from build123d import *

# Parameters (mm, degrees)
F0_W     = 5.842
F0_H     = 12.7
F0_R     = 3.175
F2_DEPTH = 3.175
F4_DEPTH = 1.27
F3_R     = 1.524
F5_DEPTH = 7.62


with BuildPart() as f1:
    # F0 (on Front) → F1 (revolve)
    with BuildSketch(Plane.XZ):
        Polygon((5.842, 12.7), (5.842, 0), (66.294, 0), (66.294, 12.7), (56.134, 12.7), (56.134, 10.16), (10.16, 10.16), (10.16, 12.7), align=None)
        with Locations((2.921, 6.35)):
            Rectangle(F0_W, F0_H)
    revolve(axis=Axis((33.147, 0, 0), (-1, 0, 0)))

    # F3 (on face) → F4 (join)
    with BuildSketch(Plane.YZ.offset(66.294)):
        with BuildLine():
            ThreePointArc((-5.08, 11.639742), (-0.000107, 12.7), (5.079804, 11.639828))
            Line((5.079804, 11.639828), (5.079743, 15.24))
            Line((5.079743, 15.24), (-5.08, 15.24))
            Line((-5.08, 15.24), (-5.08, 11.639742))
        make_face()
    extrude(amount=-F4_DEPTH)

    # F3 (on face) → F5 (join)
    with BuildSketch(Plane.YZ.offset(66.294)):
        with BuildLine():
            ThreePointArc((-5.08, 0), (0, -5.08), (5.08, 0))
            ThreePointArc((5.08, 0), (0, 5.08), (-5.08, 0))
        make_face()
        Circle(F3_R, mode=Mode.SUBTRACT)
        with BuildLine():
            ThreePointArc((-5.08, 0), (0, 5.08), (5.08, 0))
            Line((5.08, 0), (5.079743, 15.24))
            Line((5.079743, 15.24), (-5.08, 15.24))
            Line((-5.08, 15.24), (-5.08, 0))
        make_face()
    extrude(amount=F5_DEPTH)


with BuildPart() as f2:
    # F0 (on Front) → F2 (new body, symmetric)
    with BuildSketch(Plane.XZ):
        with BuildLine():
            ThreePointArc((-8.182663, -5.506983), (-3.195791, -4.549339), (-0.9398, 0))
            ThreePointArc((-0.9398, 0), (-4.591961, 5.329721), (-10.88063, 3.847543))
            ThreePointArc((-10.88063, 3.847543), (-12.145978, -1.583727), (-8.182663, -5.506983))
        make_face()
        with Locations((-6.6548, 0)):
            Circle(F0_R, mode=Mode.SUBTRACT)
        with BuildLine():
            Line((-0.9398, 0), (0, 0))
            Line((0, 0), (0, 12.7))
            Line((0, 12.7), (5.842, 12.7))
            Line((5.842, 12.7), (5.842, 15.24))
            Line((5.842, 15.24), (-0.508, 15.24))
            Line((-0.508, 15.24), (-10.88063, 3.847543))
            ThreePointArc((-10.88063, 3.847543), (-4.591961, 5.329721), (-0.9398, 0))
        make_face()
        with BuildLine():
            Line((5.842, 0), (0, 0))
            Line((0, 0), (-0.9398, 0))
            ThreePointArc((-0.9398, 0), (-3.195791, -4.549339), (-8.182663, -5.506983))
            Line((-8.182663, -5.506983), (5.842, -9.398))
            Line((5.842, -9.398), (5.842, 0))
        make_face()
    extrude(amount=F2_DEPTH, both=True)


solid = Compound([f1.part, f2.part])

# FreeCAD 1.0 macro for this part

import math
import FreeCAD as App
import Part
import Sketcher
from FreeCAD import Vector
Q = App.Units.Quantity


def add_polygon(sketch, points):
    """Adds a closed chain of lines whose ends are joined by coincident constraints."""
    first, n = sketch.GeometryCount, len(points)
    for a, b in zip(points, points[1:] + points[:1]):
        sketch.addGeometry(Part.LineSegment(App.Vector(*a, 0), App.Vector(*b, 0)), False)
    for i in range(n):
        sketch.addConstraint(Sketcher.Constraint("Coincident", first + i, 2, first + (i + 1) % n, 1))

doc = App.newDocument("Part")
body = doc.addObject("PartDesign::Body", "Body")

# Sketch on XZ plane
sketch1 = body.newObject("Sketcher::SketchObject", "Sketch")
sketch1.AttachmentSupport = (doc.getObject("XZ_Plane"), [""])
sketch1.MapMode = "FlatFace"
add_polygon(sketch1, [(66.294, 0), (66.294, 12.7), (56.134, 12.7), (56.134, 10.16), (10.16, 10.16), (10.16, 12.7), (0, 12.7), (0, 0)])  # lines 0-7
sketch1.addConstraint([
    Sketcher.Constraint("Vertical", 0),
    Sketcher.Constraint("Horizontal", 1),
    Sketcher.Constraint("Vertical", 2),
    Sketcher.Constraint("Horizontal", 3),
    Sketcher.Constraint("Vertical", 4),
    Sketcher.Constraint("Horizontal", 5),
    Sketcher.Constraint("Vertical", 6),
    Sketcher.Constraint("Horizontal", 7),
    Sketcher.Constraint("Coincident", 6, 2, -1, 1),
    Sketcher.Constraint("Horizontal", 1, 2, 4, 2),
    Sketcher.Constraint("Equal", 1, 5),
    Sketcher.Constraint("DistanceX", 1, 2, 1, 1, Q("0.4 in")),
    Sketcher.Constraint("DistanceY", 0, 1, 0, 2, Q("0.5 in")),
    Sketcher.Constraint("DistanceY", 2, 2, 2, 1, Q("0.1 in")),
    Sketcher.Constraint("DistanceX", 3, 2, 3, 1, Q("1.81 in")),
])
revolution = body.newObject("PartDesign::Revolution", "Revolution")
revolution.Profile = sketch1
revolution.ReferenceAxis = (sketch1, ["H_Axis"])
revolution.Angle = 360

# Sketch on YZ plane
sketch2 = body.newObject("Sketcher::SketchObject", "Sketch001")
sketch2.AttachmentSupport = (doc.getObject("YZ_Plane"), [""])
sketch2.MapMode = "FlatFace"
sketch2.AttachmentOffset = App.Placement(Vector(0, 0, 2.61 * 25.4), App.Rotation())
sketch2.addGeometry([
    Part.ArcOfCircle(Part.Circle(Vector(0.000001, 0, 0), Vector(0, 0, 1), 12.7), math.radians(66.422788), math.radians(113.578182)),
    Part.LineSegment(Vector(5.079804, 11.639828, 0), Vector(5.079743, 15.24, 0)),
    Part.LineSegment(Vector(5.079743, 15.24, 0), Vector(-5.08, 15.24, 0)),
    Part.LineSegment(Vector(-5.08, 15.24, 0), Vector(-5.08, 11.639742, 0)),
], False)
sketch2.addConstraint([
    Sketcher.Constraint("Coincident", 0, 1, 1, 1),
    Sketcher.Constraint("Coincident", 1, 2, 2, 1),
    Sketcher.Constraint("Coincident", 2, 2, 3, 1),
    Sketcher.Constraint("Coincident", 3, 2, 0, 2),
    Sketcher.Constraint("Horizontal", 2),
    Sketcher.Constraint("Vertical", 3),
    Sketcher.Constraint("Coincident", 0, 3, -1, 1),
    Sketcher.Constraint("Radius", 0, Q("0.5 in")),
    Sketcher.Constraint("DistanceY", -1, 1, 1, 2, Q("0.6 in")),
    Sketcher.Constraint("DistanceX", 2, 2, -1, 1, Q("0.2 in")),
    Sketcher.Constraint("DistanceX", 2, 2, 2, 1, 10.159743),
    Sketcher.Constraint("DistanceY", -1, 1, 0, 1, 11.639828),
])
pad1 = body.newObject("PartDesign::Pad", "Pad")
pad1.Profile = sketch2
pad1.Length = Q("0.05 in")
pad1.Reversed = True

# Sketch on YZ plane
sketch3 = body.newObject("Sketcher::SketchObject", "Sketch002")
sketch3.AttachmentSupport = (doc.getObject("YZ_Plane"), [""])
sketch3.MapMode = "FlatFace"
sketch3.AttachmentOffset = App.Placement(Vector(0, 0, 2.61 * 25.4), App.Rotation())
sketch3.addGeometry([
    Part.ArcOfCircle(Part.Circle(Vector(0, 0, 0), Vector(0, 0, 1), 5.08), math.radians(180), math.radians(360)),  # 0
    Part.LineSegment(Vector(5.08, 0, 0), Vector(5.079743, 15.24, 0)),  # 1
    Part.LineSegment(Vector(5.079743, 15.24, 0), Vector(-5.08, 15.24, 0)),  # 2
    Part.LineSegment(Vector(-5.08, 15.24, 0), Vector(-5.08, 0, 0)),  # 3
    Part.Circle(Vector(0, 0, 0), Vector(0, 0, 1), 1.524),  # 4
], False)
sketch3.addConstraint([
    Sketcher.Constraint("Coincident", 0, 2, 1, 1),
    Sketcher.Constraint("Coincident", 1, 2, 2, 1),
    Sketcher.Constraint("Coincident", 2, 2, 3, 1),
    Sketcher.Constraint("Tangent", 3, 2, 0, 1),
    Sketcher.Constraint("Horizontal", 2),
    Sketcher.Constraint("Vertical", 3),
    Sketcher.Constraint("Coincident", 0, 3, -1, 1),
    Sketcher.Constraint("Coincident", 4, 3, -1, 1),
    Sketcher.Constraint("PointOnObject", 0, 2, -1),
    Sketcher.Constraint("Radius", 0, Q("0.2 in")),
    Sketcher.Constraint("Diameter", 4, Q("0.12 in")),
    Sketcher.Constraint("DistanceY", 3, 2, 3, 1, Q("0.6 in")),
    Sketcher.Constraint("DistanceX", 2, 2, 2, 1, 10.159743),
])
pad2 = body.newObject("PartDesign::Pad", "Pad001")
pad2.Profile = sketch3
pad2.Length = Q("0.3 in")
body2 = doc.addObject("PartDesign::Body", "Body001")

# Sketch on XZ plane
sketch4 = body2.newObject("Sketcher::SketchObject", "Sketch003")
sketch4.AttachmentSupport = (doc.getObject("XZ_Plane001"), [""])
sketch4.MapMode = "FlatFace"
sketch4.addGeometry([
    Part.LineSegment(Vector(0, 0, 0), Vector(0, 12.7, 0)),  # 0
    Part.LineSegment(Vector(0, 12.7, 0), Vector(5.842, 12.7, 0)),  # 1
    Part.LineSegment(Vector(5.842, 12.7, 0), Vector(5.842, 15.24, 0)),  # 2
    Part.LineSegment(Vector(5.842, 15.24, 0), Vector(-0.508, 15.24, 0)),  # 3
    Part.LineSegment(Vector(-0.508, 15.24, 0), Vector(-10.88063, 3.847543, 0)),  # 4
    Part.ArcOfCircle(Part.Circle(Vector(-6.6548, 0, 0), Vector(0, 0, 1), 5.715), math.radians(137.682696), math.radians(254.493803)),  # 5
    Part.LineSegment(Vector(-8.182663, -5.506983, 0), Vector(5.842, -9.398, 0)),  # 6
    Part.LineSegment(Vector(5.842, -9.398, 0), Vector(5.842, 0, 0)),  # 7
    Part.LineSegment(Vector(5.842, 0, 0), Vector(0, 0, 0)),  # 8
    Part.Circle(Vector(-6.6548, 0, 0), Vector(0, 0, 1), 3.175),  # 9
], False)
sketch4.addConstraint([
    Sketcher.Constraint("Coincident", 0, 2, 1, 1),
    Sketcher.Constraint("Coincident", 1, 2, 2, 1),
    Sketcher.Constraint("Coincident", 2, 2, 3, 1),
    Sketcher.Constraint("Coincident", 3, 2, 4, 1),
    Sketcher.Constraint("Tangent", 4, 2, 5, 1),
    Sketcher.Constraint("Tangent", 5, 2, 6, 1),
    Sketcher.Constraint("Coincident", 6, 2, 7, 1),
    Sketcher.Constraint("Coincident", 7, 2, 8, 1),
    Sketcher.Constraint("Coincident", 8, 2, 0, 1),
    Sketcher.Constraint("Vertical", 0),
    Sketcher.Constraint("Horizontal", 1),
    Sketcher.Constraint("Vertical", 2),
    Sketcher.Constraint("Horizontal", 3),
    Sketcher.Constraint("Vertical", 7),
    Sketcher.Constraint("Horizontal", 8),
    Sketcher.Constraint("Coincident", 8, 2, -1, 1),
    Sketcher.Constraint("Coincident", 9, 3, 5, 3),
    Sketcher.Constraint("PointOnObject", 5, 3, -1),
    Sketcher.Constraint("Vertical", 2, 2, 6, 2),
    Sketcher.Constraint("Diameter", 9, Q("0.25 in")),
    Sketcher.Constraint("DistanceY", 0, 1, 0, 2, Q("0.5 in")),
    Sketcher.Constraint("DistanceY", 2, 1, 2, 2, Q("0.1 in")),
    Sketcher.Constraint("Radius", 5, Q("0.225 in")),
    Sketcher.Constraint("DistanceX", 1, 1, 1, 2, Q("0.23 in")),
    Sketcher.Constraint("DistanceX", 3, 2, 3, 1, Q("0.25 in")),
    Sketcher.Constraint("DistanceY", 7, 1, 7, 2, Q("0.37 in")),
    Sketcher.Constraint("DistanceX", 5, 3, -1, 1, Q("0.262 in")),
])
pad3 = body2.newObject("PartDesign::Pad", "Pad002")
pad3.Profile = sketch4
pad3.Length = Q("0.25 in")
pad3.Midplane = True

doc.recompute()
